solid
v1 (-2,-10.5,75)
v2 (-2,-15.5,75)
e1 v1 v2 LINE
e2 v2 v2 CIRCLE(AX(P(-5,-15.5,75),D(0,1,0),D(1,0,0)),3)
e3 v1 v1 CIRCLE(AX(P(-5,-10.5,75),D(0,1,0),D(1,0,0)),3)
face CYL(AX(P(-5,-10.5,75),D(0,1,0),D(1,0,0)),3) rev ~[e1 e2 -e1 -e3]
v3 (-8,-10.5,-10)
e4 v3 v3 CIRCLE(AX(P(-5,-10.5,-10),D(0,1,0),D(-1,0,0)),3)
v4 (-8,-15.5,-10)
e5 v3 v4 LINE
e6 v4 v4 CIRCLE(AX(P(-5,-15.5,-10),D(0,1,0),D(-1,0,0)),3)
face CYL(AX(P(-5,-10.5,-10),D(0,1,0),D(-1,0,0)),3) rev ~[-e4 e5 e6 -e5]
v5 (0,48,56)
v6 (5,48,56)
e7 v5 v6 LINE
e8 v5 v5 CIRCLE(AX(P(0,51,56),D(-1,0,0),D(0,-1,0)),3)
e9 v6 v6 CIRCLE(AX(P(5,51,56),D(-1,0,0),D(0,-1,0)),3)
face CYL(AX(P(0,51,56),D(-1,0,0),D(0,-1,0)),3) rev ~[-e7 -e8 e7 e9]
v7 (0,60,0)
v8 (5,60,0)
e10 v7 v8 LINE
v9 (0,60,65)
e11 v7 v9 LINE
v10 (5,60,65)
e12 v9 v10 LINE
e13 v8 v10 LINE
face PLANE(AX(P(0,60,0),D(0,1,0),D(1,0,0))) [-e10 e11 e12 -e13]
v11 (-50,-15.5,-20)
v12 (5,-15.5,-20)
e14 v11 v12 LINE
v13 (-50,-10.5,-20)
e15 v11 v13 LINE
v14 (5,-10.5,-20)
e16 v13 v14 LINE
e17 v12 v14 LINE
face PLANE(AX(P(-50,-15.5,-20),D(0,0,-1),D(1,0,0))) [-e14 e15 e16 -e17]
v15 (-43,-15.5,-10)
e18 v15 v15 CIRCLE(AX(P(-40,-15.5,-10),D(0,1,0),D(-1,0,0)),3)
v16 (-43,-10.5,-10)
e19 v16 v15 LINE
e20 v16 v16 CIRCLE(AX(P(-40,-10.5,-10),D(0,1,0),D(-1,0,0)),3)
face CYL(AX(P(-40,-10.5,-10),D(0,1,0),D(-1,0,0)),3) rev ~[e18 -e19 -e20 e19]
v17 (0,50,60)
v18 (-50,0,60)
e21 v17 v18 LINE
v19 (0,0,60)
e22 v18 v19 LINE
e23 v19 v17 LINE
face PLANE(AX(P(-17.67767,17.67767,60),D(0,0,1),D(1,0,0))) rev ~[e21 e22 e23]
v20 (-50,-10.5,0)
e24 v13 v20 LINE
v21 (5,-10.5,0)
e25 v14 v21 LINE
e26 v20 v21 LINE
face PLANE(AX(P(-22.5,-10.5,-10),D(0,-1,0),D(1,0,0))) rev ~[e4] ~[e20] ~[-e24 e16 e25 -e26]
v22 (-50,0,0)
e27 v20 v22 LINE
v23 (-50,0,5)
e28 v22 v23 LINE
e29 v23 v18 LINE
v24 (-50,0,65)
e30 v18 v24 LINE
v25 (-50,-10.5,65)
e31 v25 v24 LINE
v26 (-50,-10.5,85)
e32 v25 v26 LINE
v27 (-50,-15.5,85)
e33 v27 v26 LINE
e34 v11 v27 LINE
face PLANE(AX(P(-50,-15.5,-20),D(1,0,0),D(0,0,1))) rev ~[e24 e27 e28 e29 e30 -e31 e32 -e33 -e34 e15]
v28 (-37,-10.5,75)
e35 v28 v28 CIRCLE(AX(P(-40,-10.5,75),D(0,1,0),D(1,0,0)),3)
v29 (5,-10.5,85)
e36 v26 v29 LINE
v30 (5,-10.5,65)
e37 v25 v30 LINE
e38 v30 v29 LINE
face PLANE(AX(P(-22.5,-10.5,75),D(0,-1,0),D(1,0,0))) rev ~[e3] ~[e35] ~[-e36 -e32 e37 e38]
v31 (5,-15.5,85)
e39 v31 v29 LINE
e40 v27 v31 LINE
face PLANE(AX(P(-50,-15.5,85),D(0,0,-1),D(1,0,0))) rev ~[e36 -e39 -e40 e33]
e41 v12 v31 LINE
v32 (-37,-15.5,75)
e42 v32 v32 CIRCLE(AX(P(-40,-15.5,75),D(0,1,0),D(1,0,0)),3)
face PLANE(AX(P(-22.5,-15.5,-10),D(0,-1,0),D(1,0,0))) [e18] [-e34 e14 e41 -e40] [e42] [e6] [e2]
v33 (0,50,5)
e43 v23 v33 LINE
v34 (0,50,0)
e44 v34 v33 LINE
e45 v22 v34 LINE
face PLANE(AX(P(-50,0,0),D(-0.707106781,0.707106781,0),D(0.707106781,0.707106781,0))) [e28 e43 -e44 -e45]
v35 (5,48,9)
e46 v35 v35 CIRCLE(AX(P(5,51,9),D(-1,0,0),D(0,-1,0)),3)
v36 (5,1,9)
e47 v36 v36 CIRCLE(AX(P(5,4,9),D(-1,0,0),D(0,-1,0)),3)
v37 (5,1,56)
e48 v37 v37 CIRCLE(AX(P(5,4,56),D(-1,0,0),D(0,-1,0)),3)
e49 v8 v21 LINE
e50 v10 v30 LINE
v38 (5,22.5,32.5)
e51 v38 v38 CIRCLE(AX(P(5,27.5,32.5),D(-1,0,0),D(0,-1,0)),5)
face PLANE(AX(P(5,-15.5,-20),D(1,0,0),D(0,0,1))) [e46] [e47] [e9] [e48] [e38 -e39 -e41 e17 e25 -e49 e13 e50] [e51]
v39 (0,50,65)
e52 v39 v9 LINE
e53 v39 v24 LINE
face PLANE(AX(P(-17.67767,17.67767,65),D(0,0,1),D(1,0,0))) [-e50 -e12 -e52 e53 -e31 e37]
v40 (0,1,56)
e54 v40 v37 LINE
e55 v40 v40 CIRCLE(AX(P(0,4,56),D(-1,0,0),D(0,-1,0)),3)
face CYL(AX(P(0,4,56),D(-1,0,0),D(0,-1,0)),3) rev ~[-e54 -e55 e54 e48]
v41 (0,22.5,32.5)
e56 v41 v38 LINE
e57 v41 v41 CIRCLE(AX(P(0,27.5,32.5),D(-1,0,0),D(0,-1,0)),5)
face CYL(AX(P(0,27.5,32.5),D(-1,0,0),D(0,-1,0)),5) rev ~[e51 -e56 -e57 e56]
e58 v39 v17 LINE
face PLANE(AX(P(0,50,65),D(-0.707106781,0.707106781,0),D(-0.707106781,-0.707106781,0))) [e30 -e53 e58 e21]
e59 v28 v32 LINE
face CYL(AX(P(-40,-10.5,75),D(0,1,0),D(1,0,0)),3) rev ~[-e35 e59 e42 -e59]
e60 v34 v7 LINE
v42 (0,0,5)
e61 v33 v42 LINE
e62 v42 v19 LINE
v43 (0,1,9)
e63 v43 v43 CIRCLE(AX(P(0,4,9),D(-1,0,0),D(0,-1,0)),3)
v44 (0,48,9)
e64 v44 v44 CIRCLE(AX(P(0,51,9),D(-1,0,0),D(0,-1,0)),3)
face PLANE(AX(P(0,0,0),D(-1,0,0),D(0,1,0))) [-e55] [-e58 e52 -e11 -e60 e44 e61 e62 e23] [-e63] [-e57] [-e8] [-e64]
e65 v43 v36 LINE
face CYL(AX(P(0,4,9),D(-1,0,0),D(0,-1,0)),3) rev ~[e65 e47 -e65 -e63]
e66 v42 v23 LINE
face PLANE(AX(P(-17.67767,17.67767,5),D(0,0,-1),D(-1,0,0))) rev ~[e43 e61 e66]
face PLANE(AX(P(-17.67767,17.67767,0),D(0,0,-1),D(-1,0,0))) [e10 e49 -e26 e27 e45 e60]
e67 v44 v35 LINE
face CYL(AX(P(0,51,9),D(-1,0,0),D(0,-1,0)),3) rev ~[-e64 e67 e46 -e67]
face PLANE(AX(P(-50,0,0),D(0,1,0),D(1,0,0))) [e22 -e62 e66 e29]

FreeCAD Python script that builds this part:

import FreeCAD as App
import Part
import Sketcher

V = App.Vector
Q = App.Units.Quantity


def add_polygon(sketch, points):
    """Adds a closed chain of lines whose ends are joined by coincident constraints."""
    first, n = sketch.GeometryCount, len(points)
    for a, b in zip(points, points[1:] + points[:1]):
        sketch.addGeometry(Part.LineSegment(App.Vector(*a, 0), App.Vector(*b, 0)), False)
    for i in range(n):
        sketch.addConstraint(Sketcher.Constraint("Coincident", first + i, 2, first + (i + 1) % n, 1))

doc = App.newDocument("Part")
body = doc.addObject("PartDesign::Body", "Body")

# Sketch on XY plane
sketch1 = body.newObject("Sketcher::SketchObject", "Sketch")
sketch1.AttachmentSupport = (doc.getObject("XY_Plane"), [""])
sketch1.MapMode = "FlatFace"
add_polygon(sketch1, [(0, 60), (0, 0), (-50, 0), (-50, -15.5), (5, -15.5), (5, 60)])  # lines 0-5
sketch1.addConstraint(Sketcher.Constraint("Vertical", 0))
sketch1.addConstraint(Sketcher.Constraint("Horizontal", 1))
sketch1.addConstraint(Sketcher.Constraint("Vertical", 2))
sketch1.addConstraint(Sketcher.Constraint("Horizontal", 3))
sketch1.addConstraint(Sketcher.Constraint("Vertical", 4))
sketch1.addConstraint(Sketcher.Constraint("Horizontal", 5))
sketch1.addConstraint(Sketcher.Constraint("Coincident", 0, 2, -1, 1))
sketch1.addConstraint(Sketcher.Constraint("DistanceX", 1, 2, 1, 1, Q("50 mm")))
sketch1.addConstraint(Sketcher.Constraint("DistanceX", 3, 1, 3, 2, Q("55 mm")))
sketch1.addConstraint(Sketcher.Constraint("DistanceY", 0, 2, 0, 1, Q("60 mm")))
sketch1.addConstraint(Sketcher.Constraint("DistanceY", 2, 2, 2, 1, Q("15.5 mm")))
pad1 = body.newObject("PartDesign::Pad", "Pad")
pad1.Profile = sketch1
pad1.Length = 65

# Sketch on XY plane
sketch2 = body.newObject("Sketcher::SketchObject", "Sketch001")
sketch2.AttachmentSupport = (doc.getObject("XY_Plane"), [""])
sketch2.MapMode = "FlatFace"
add_polygon(sketch2, [(0, 0), (-50, 0), (0, 50)])  # lines 0-2
sketch2.addConstraint(Sketcher.Constraint("Horizontal", 0))
sketch2.addConstraint(Sketcher.Constraint("Vertical", 2))
sketch2.addConstraint(Sketcher.Constraint("Coincident", 2, 2, -1, 1))
sketch2.addConstraint(Sketcher.Constraint("Equal", 0, 2))
sketch2.addConstraint(Sketcher.Constraint("DistanceX", 0, 2, 0, 1, Q("50 mm")))
pad2 = body.newObject("PartDesign::Pad", "Pad001")
pad2.Profile = sketch2
pad2.Length = 5

# Sketch on XY plane
sketch3 = body.newObject("Sketcher::SketchObject", "Sketch002")
sketch3.AttachmentSupport = (doc.getObject("XY_Plane"), [""])
sketch3.MapMode = "FlatFace"
sketch3.AttachmentOffset = App.Placement(V(0, 0, 65), App.Rotation())
add_polygon(sketch3, [(-50, 0), (0, 0), (0, 50)])  # lines 0-2
sketch3.addConstraint(Sketcher.Constraint("Horizontal", 0))
sketch3.addConstraint(Sketcher.Constraint("Vertical", 1))
sketch3.addConstraint(Sketcher.Constraint("Coincident", 0, 2, -1, 1))
sketch3.addConstraint(Sketcher.Constraint("Equal", 0, 1))
sketch3.addConstraint(Sketcher.Constraint("DistanceX", 0, 1, 0, 2, Q("50 mm")))
pad3 = body.newObject("PartDesign::Pad", "Pad002")
pad3.Profile = sketch3
pad3.Length = 5
pad3.Reversed = True

# Sketch on YZ plane
sketch4 = body.newObject("Sketcher::SketchObject", "Sketch003")
sketch4.AttachmentSupport = (doc.getObject("YZ_Plane"), [""])
sketch4.MapMode = "FlatFace"
sketch4.addGeometry(Part.Circle(V(27.5, 32.5, 0), V(0, 0, 1), 5), False)
sketch4.addGeometry(Part.Circle(V(51, 9, 0), V(0, 0, 1), 3), False)
sketch4.addGeometry(Part.Circle(V(51, 56, 0), V(0, 0, 1), 3), False)
sketch4.addGeometry(Part.Circle(V(4, 56, 0), V(0, 0, 1), 3), False)
sketch4.addGeometry(Part.Circle(V(4, 9, 0), V(0, 0, 1), 3), False)
sketch4.addConstraint(Sketcher.Constraint("Equal", 1, 2))
sketch4.addConstraint(Sketcher.Constraint("Equal", 2, 3))
sketch4.addConstraint(Sketcher.Constraint("Equal", 3, 4))
sketch4.addConstraint(Sketcher.Constraint("Horizontal", 2, 3, 3, 3))
sketch4.addConstraint(Sketcher.Constraint("Horizontal", 1, 3, 4, 3))
sketch4.addConstraint(Sketcher.Constraint("Vertical", 1, 3, 2, 3))
sketch4.addConstraint(Sketcher.Constraint("Vertical", 3, 3, 4, 3))
sketch4.addConstraint(Sketcher.Constraint("Diameter", 0, Q("10 mm")))
sketch4.addConstraint(Sketcher.Constraint("Diameter", 1, Q("6 mm")))
sketch4.addConstraint(Sketcher.Constraint("DistanceX", -1, 1, 1, 3, Q("51 mm")))
sketch4.addConstraint(Sketcher.Constraint("DistanceY", -1, 1, 1, 3, Q("9 mm")))
sketch4.addConstraint(Sketcher.Constraint("DistanceY", -1, 1, 2, 3, Q("56 mm")))
sketch4.addConstraint(Sketcher.Constraint("DistanceX", -1, 1, 3, 3, Q("4 mm")))
sketch4.addConstraint(Sketcher.Constraint("DistanceX", -1, 1, 0, 3, Q("27.5 mm")))
sketch4.addConstraint(Sketcher.Constraint("DistanceY", -1, 1, 0, 3, Q("32.5 mm")))
pocket1 = body.newObject("PartDesign::Pocket", "Pocket")
pocket1.Profile = sketch4
pocket1.Type = "ThroughAll"
pocket1.Reversed = True

# Sketch on XZ plane
sketch5 = body.newObject("Sketcher::SketchObject", "Sketch004")
sketch5.AttachmentSupport = (doc.getObject("XZ_Plane"), [""])
sketch5.MapMode = "FlatFace"
sketch5.AttachmentOffset = App.Placement(V(0, 0, 15.5), App.Rotation())
add_polygon(sketch5, [(-50, 0), (-50, -20), (5, -20), (5, 0)])  # lines 0-3
add_polygon(sketch5, [(-50, 85), (-50, 65), (5, 65), (5, 85)])  # lines 4-7
sketch5.addConstraint(Sketcher.Constraint("Vertical", 0))
sketch5.addConstraint(Sketcher.Constraint("Horizontal", 1))
sketch5.addConstraint(Sketcher.Constraint("Vertical", 2))
sketch5.addConstraint(Sketcher.Constraint("Horizontal", 3))
sketch5.addConstraint(Sketcher.Constraint("Vertical", 4))
sketch5.addConstraint(Sketcher.Constraint("Horizontal", 5))
sketch5.addConstraint(Sketcher.Constraint("Vertical", 6))
sketch5.addConstraint(Sketcher.Constraint("Horizontal", 7))
sketch5.addConstraint(Sketcher.Constraint("PointOnObject", 2, 2, -1))
sketch5.addConstraint(Sketcher.Constraint("Vertical", 3, 2, 4, 2))
sketch5.addConstraint(Sketcher.Constraint("Vertical", 2, 2, 5, 2))
sketch5.addConstraint(Sketcher.Constraint("Equal", 2, 4))
sketch5.addConstraint(Sketcher.Constraint("DistanceX", 1, 1, 1, 2, Q("55 mm")))
sketch5.addConstraint(Sketcher.Constraint("DistanceY", 0, 2, 0, 1, Q("20 mm")))
sketch5.addConstraint(Sketcher.Constraint("DistanceX", 0, 2, -1, 1, Q("50 mm")))
sketch5.addConstraint(Sketcher.Constraint("DistanceY", -1, 1, 4, 2, Q("65 mm")))
pad4 = body.newObject("PartDesign::Pad", "Pad003")
pad4.Profile = sketch5
pad4.Length = 5
pad4.Reversed = True

# Sketch on XZ plane
sketch6 = body.newObject("Sketcher::SketchObject", "Sketch005")
sketch6.AttachmentSupport = (doc.getObject("XZ_Plane"), [""])
sketch6.MapMode = "FlatFace"
sketch6.AttachmentOffset = App.Placement(V(0, 0, 10.5), App.Rotation())
sketch6.addGeometry(Part.Circle(V(-5, -10, 0), V(0, 0, 1), 3), False)
sketch6.addGeometry(Part.Circle(V(-40, -10, 0), V(0, 0, 1), 3), False)
sketch6.addGeometry(Part.Circle(V(-5, 75, 0), V(0, 0, 1), 3), False)
sketch6.addGeometry(Part.Circle(V(-40, 75, 0), V(0, 0, 1), 3), False)
sketch6.addConstraint(Sketcher.Constraint("Equal", 0, 1))
sketch6.addConstraint(Sketcher.Constraint("Equal", 1, 2))
sketch6.addConstraint(Sketcher.Constraint("Equal", 2, 3))
sketch6.addConstraint(Sketcher.Constraint("Horizontal", 0, 3, 1, 3))
sketch6.addConstraint(Sketcher.Constraint("Horizontal", 2, 3, 3, 3))
sketch6.addConstraint(Sketcher.Constraint("Vertical", 0, 3, 2, 3))
sketch6.addConstraint(Sketcher.Constraint("Vertical", 1, 3, 3, 3))
sketch6.addConstraint(Sketcher.Constraint("Diameter", 0, Q("6 mm")))
sketch6.addConstraint(Sketcher.Constraint("DistanceX", 0, 3, -1, 1, Q("5 mm")))
sketch6.addConstraint(Sketcher.Constraint("DistanceY", 0, 3, -1, 1, Q("10 mm")))
sketch6.addConstraint(Sketcher.Constraint("DistanceX", 1, 3, -1, 1, Q("40 mm")))
sketch6.addConstraint(Sketcher.Constraint("DistanceY", -1, 1, 2, 3, Q("75 mm")))
pocket2 = body.newObject("PartDesign::Pocket", "Pocket001")
pocket2.Profile = sketch6
pocket2.Length = 5
pocket2.Reversed = True

doc.recompute()
